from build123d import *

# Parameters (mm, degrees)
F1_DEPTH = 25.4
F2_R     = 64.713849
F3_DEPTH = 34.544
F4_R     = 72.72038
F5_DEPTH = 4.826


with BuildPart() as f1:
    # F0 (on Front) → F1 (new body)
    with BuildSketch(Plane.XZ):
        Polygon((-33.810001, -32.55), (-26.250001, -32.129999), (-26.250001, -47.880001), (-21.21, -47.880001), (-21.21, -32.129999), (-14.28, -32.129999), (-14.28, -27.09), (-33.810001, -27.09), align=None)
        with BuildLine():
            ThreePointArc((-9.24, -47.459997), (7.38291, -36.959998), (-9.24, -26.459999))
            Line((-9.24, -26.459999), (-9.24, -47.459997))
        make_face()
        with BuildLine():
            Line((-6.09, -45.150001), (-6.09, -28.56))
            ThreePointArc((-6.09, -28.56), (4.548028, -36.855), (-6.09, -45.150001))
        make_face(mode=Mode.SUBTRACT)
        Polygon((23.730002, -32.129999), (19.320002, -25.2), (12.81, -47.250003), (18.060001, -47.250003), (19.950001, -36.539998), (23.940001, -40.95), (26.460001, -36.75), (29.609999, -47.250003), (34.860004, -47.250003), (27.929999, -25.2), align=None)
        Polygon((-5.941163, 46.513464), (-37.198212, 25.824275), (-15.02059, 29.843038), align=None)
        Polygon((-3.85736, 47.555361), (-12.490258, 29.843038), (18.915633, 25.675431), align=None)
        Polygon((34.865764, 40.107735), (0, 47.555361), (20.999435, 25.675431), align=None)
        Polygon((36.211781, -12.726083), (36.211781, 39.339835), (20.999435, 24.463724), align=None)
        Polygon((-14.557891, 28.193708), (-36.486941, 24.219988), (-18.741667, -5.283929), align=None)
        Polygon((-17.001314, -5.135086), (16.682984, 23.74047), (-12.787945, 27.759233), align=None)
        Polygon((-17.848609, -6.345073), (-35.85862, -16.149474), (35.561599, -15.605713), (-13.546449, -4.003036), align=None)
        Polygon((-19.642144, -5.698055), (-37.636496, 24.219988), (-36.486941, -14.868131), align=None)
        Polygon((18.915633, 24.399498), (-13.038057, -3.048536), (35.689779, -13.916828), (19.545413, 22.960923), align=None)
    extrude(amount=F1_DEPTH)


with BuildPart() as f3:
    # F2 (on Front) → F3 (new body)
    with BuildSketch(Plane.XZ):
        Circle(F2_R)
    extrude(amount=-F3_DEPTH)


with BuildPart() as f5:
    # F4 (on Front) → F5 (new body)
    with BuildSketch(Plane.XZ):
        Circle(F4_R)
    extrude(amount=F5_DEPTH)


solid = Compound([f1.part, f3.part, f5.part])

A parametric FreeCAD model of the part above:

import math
import FreeCAD as App
import Part
import Sketcher
Q = App.Units.Quantity

doc = App.newDocument("Part")
body = doc.addObject("PartDesign::Body", "Body")
body.AllowCompound = True

sketch1 = doc.addObject("Sketcher::SketchObject", "Sketch")
body.addObject(sketch1)
sketch1.AttachmentSupport = (doc.XZ_Plane, [""])
sketch1.MapMode = "FlatFace"
sketch1.addGeometry([
    Part.LineSegment(App.Vector(-33.810001, -32.55, 0), App.Vector(-26.250001, -32.129999, 0)),
    Part.LineSegment(App.Vector(-26.250001, -32.129999, 0), App.Vector(-26.250001, -47.880001, 0)),
    Part.LineSegment(App.Vector(-26.250001, -47.880001, 0), App.Vector(-21.21, -47.880001, 0)),
    Part.LineSegment(App.Vector(-21.21, -47.880001, 0), App.Vector(-21.21, -32.129999, 0)),
    Part.LineSegment(App.Vector(-21.21, -32.129999, 0), App.Vector(-14.28, -32.129999, 0)),
    Part.LineSegment(App.Vector(-14.28, -32.129999, 0), App.Vector(-14.28, -27.09, 0)),
    Part.LineSegment(App.Vector(-14.28, -27.09, 0), App.Vector(-33.810001, -27.09, 0)),
    Part.LineSegment(App.Vector(-33.810001, -27.09, 0), App.Vector(-33.810001, -32.55, 0)),
    Part.ArcOfCircle(Part.Circle(App.Vector(-4.244751, -36.959998, 0), App.Vector(0, 0, 1), 11.627661), math.radians(-115.442212), math.radians(115.442212)),
    Part.LineSegment(App.Vector(-9.24, -26.459999, 0), App.Vector(-9.24, -47.459997, 0)),
    Part.ArcOfCircle(Part.Circle(App.Vector(-4.004999, -36.855001, 0), App.Vector(0, 0, 1), 8.553027), math.radians(-104.109364), math.radians(104.109364)),
    Part.LineSegment(App.Vector(-6.09, -45.150001, 0), App.Vector(-6.09, -28.56, 0)),
    Part.LineSegment(App.Vector(23.730002, -32.129999, 0), App.Vector(19.320002, -25.2, 0)),
    Part.LineSegment(App.Vector(19.320002, -25.2, 0), App.Vector(12.81, -47.250003, 0)),
    Part.LineSegment(App.Vector(12.81, -47.250003, 0), App.Vector(18.060001, -47.250003, 0)),
    Part.LineSegment(App.Vector(18.060001, -47.250003, 0), App.Vector(19.950001, -36.539998, 0)),
    Part.LineSegment(App.Vector(19.950001, -36.539998, 0), App.Vector(23.940001, -40.95, 0)),
    Part.LineSegment(App.Vector(23.940001, -40.95, 0), App.Vector(26.460001, -36.75, 0)),
    Part.LineSegment(App.Vector(26.460001, -36.75, 0), App.Vector(29.609999, -47.250003, 0)),
    Part.LineSegment(App.Vector(29.609999, -47.250003, 0), App.Vector(34.860004, -47.250003, 0)),
    Part.LineSegment(App.Vector(34.860004, -47.250003, 0), App.Vector(27.929999, -25.2, 0)),
    Part.LineSegment(App.Vector(27.929999, -25.2, 0), App.Vector(23.730002, -32.129999, 0)),
    Part.LineSegment(App.Vector(-5.941163, 46.513464, 0), App.Vector(-37.198212, 25.824275, 0)),
    Part.LineSegment(App.Vector(-37.198212, 25.824275, 0), App.Vector(-15.02059, 29.843038, 0)),
    Part.LineSegment(App.Vector(-15.02059, 29.843038, 0), App.Vector(-5.941163, 46.513464, 0)),
    Part.LineSegment(App.Vector(-3.85736, 47.555361, 0), App.Vector(-12.490258, 29.843038, 0)),
    Part.LineSegment(App.Vector(-12.490258, 29.843038, 0), App.Vector(18.915633, 25.675431, 0)),
    Part.LineSegment(App.Vector(18.915633, 25.675431, 0), App.Vector(-3.85736, 47.555361, 0)),
    Part.LineSegment(App.Vector(34.865764, 40.107735, 0), App.Vector(0, 47.555361, 0)),
    Part.LineSegment(App.Vector(0, 47.555361, 0), App.Vector(20.999435, 25.675431, 0)),
    Part.LineSegment(App.Vector(20.999435, 25.675431, 0), App.Vector(34.865764, 40.107735, 0)),
    Part.LineSegment(App.Vector(36.211781, -12.726083, 0), App.Vector(36.211781, 39.339835, 0)),
    Part.LineSegment(App.Vector(36.211781, 39.339835, 0), App.Vector(20.999435, 24.463724, 0)),
    Part.LineSegment(App.Vector(20.999435, 24.463724, 0), App.Vector(36.211781, -12.726083, 0)),
    Part.LineSegment(App.Vector(-14.557891, 28.193708, 0), App.Vector(-36.486941, 24.219988, 0)),
    Part.LineSegment(App.Vector(-36.486941, 24.219988, 0), App.Vector(-18.741667, -5.283929, 0)),
    Part.LineSegment(App.Vector(-18.741667, -5.283929, 0), App.Vector(-14.557891, 28.193708, 0)),
    Part.LineSegment(App.Vector(-17.001314, -5.135086, 0), App.Vector(16.682984, 23.74047, 0)),
    Part.LineSegment(App.Vector(16.682984, 23.74047, 0), App.Vector(-12.787945, 27.759233, 0)),
    Part.LineSegment(App.Vector(-12.787945, 27.759233, 0), App.Vector(-17.001314, -5.135086, 0)),
    Part.LineSegment(App.Vector(-17.848609, -6.345073, 0), App.Vector(-35.85862, -16.149474, 0)),
    Part.LineSegment(App.Vector(-35.85862, -16.149474, 0), App.Vector(35.561599, -15.605713, 0)),
    Part.LineSegment(App.Vector(35.561599, -15.605713, 0), App.Vector(-13.546449, -4.003036, 0)),
    Part.LineSegment(App.Vector(-13.546449, -4.003036, 0), App.Vector(-17.848609, -6.345073, 0)),
    Part.LineSegment(App.Vector(-19.642144, -5.698055, 0), App.Vector(-37.636496, 24.219988, 0)),
    Part.LineSegment(App.Vector(-37.636496, 24.219988, 0), App.Vector(-36.486941, -14.868131, 0)),
    Part.LineSegment(App.Vector(-36.486941, -14.868131, 0), App.Vector(-19.642144, -5.698055, 0)),
    Part.LineSegment(App.Vector(18.915633, 24.399498, 0), App.Vector(-13.038057, -3.048536, 0)),
    Part.LineSegment(App.Vector(-13.038057, -3.048536, 0), App.Vector(35.689779, -13.916828, 0)),
    Part.LineSegment(App.Vector(35.689779, -13.916828, 0), App.Vector(19.545413, 22.960923, 0)),
    Part.LineSegment(App.Vector(19.545413, 22.960923, 0), App.Vector(18.915633, 24.399498, 0)),
], False)
sketch1.addConstraint([
    Sketcher.Constraint("Coincident", 0, 2, 1, 1),
    Sketcher.Constraint("Coincident", 1, 2, 2, 1),
    Sketcher.Constraint("Coincident", 2, 2, 3, 1),
    Sketcher.Constraint("Coincident", 3, 2, 4, 1),
    Sketcher.Constraint("Coincident", 4, 2, 5, 1),
    Sketcher.Constraint("Coincident", 5, 2, 6, 1),
    Sketcher.Constraint("Coincident", 6, 2, 7, 1),
    Sketcher.Constraint("Coincident", 7, 2, 0, 1),
    Sketcher.Constraint("Coincident", 8, 1, 9, 2),
    Sketcher.Constraint("Coincident", 9, 1, 8, 2),
    Sketcher.Constraint("Coincident", 10, 1, 11, 1),
    Sketcher.Constraint("Coincident", 11, 2, 10, 2),
    Sketcher.Constraint("Coincident", 12, 2, 13, 1),
    Sketcher.Constraint("Coincident", 13, 2, 14, 1),
    Sketcher.Constraint("Coincident", 14, 2, 15, 1),
    Sketcher.Constraint("Coincident", 15, 2, 16, 1),
    Sketcher.Constraint("Coincident", 16, 2, 17, 1),
    Sketcher.Constraint("Coincident", 17, 2, 18, 1),
    Sketcher.Constraint("Coincident", 18, 2, 19, 1),
    Sketcher.Constraint("Coincident", 19, 2, 20, 1),
    Sketcher.Constraint("Coincident", 20, 2, 21, 1),
    Sketcher.Constraint("Coincident", 21, 2, 12, 1),
    Sketcher.Constraint("Coincident", 22, 2, 23, 1),
    Sketcher.Constraint("Coincident", 23, 2, 24, 1),
    Sketcher.Constraint("Coincident", 24, 2, 22, 1),
    Sketcher.Constraint("Coincident", 25, 2, 26, 1),
    Sketcher.Constraint("Coincident", 26, 2, 27, 1),
    Sketcher.Constraint("Coincident", 27, 2, 25, 1),
    Sketcher.Constraint("Coincident", 28, 2, 29, 1),
    Sketcher.Constraint("Coincident", 29, 2, 30, 1),
    Sketcher.Constraint("Coincident", 30, 2, 28, 1),
    Sketcher.Constraint("Coincident", 31, 2, 32, 1),
    Sketcher.Constraint("Coincident", 32, 2, 33, 1),
    Sketcher.Constraint("Coincident", 33, 2, 31, 1),
    Sketcher.Constraint("Coincident", 34, 2, 35, 1),
    Sketcher.Constraint("Coincident", 35, 2, 36, 1),
    Sketcher.Constraint("Coincident", 36, 2, 34, 1),
    Sketcher.Constraint("Coincident", 37, 2, 38, 1),
    Sketcher.Constraint("Coincident", 38, 2, 39, 1),
    Sketcher.Constraint("Coincident", 39, 2, 37, 1),
    Sketcher.Constraint("Coincident", 40, 2, 41, 1),
    Sketcher.Constraint("Coincident", 41, 2, 42, 1),
    Sketcher.Constraint("Coincident", 42, 2, 43, 1),
    Sketcher.Constraint("Coincident", 43, 2, 40, 1),
    Sketcher.Constraint("Coincident", 44, 2, 45, 1),
    Sketcher.Constraint("Coincident", 45, 2, 46, 1),
    Sketcher.Constraint("Coincident", 46, 2, 44, 1),
    Sketcher.Constraint("Coincident", 47, 2, 48, 1),
    Sketcher.Constraint("Coincident", 48, 2, 49, 1),
    Sketcher.Constraint("Coincident", 49, 2, 50, 1),
    Sketcher.Constraint("Coincident", 50, 2, 47, 1),
    Sketcher.Constraint("Vertical", 1),
    Sketcher.Constraint("Horizontal", 2),
    Sketcher.Constraint("Vertical", 3),
    Sketcher.Constraint("Horizontal", 4),
    Sketcher.Constraint("Vertical", 5),
    Sketcher.Constraint("Horizontal", 6),
    Sketcher.Constraint("Vertical", 7),
    Sketcher.Constraint("Vertical", 9),
    Sketcher.Constraint("Vertical", 11),
    Sketcher.Constraint("Horizontal", 14),
    Sketcher.Constraint("Horizontal", 19),
    Sketcher.Constraint("Vertical", 31),
    Sketcher.Constraint("PointOnObject", 28, 2, -2),
    Sketcher.Constraint("Radius", 8, 11.627661),
    Sketcher.Constraint("DistanceY", 40, 2, 43, 2, Q("0.386 in")),
    Sketcher.Constraint("DistanceX", 2, 1, 2, 2, 5.040001),
    Sketcher.Constraint("DistanceX", 4, 1, 4, 2, 6.93),
    Sketcher.Constraint("DistanceX", 6, 2, 6, 1, 19.530001),
    Sketcher.Constraint("DistanceX", 14, 1, 14, 2, 5.250001),
    Sketcher.Constraint("DistanceY", 5, 1, 5, 2, 5.039999),
    Sketcher.Constraint("DistanceY", 7, 2, 7, 1, 5.46),
    Sketcher.Constraint("DistanceY", 9, 2, 9, 1, 20.999998),
    Sketcher.Constraint("DistanceY", 11, 1, 11, 2, 16.590001),
    Sketcher.Constraint("DistanceY", 42, 2, -1, 1, Q("0.1575998 in")),
    Sketcher.Constraint("Radius", 10, 8.553027),
    Sketcher.Constraint("DistanceY", 7, 2, 22, 2, Q("2.2981998 in")),
    Sketcher.Constraint("Distance", 17, 4.898),
    Sketcher.Constraint("Distance", 24, 18.9826),
    Sketcher.Constraint("Distance", 27, 31.580699),
    Sketcher.Constraint("DistanceX", 10, 3, -1, 1, 4.004999),
    Sketcher.Constraint("DistanceY", 10, 3, -1, 1, 36.855001),
    Sketcher.Constraint("DistanceX", 0, 2, -1, 1, 26.250001),
    Sketcher.Constraint("DistanceY", 0, 2, -1, 1, 32.129999),
    Sketcher.Constraint("DistanceY", 1, 2, -1, 1, 47.880001),
    Sketcher.Constraint("DistanceY", 3, 2, -1, 1, 32.129999),
    Sketcher.Constraint("DistanceX", 8, 1, -1, 1, 9.24),
    Sketcher.Constraint("DistanceY", 9, 1, -1, 1, 26.459999),
    Sketcher.Constraint("DistanceX", -1, 1, 12, 2, 19.320002),
    Sketcher.Constraint("DistanceY", 12, 2, -1, 1, 25.2),
    Sketcher.Constraint("DistanceX", -1, 1, 13, 2, 12.81),
    Sketcher.Constraint("DistanceX", -1, 1, 15, 2, 19.950001),
    Sketcher.Constraint("DistanceX", -1, 1, 16, 2, 23.940001),
    Sketcher.Constraint("DistanceY", 16, 2, -1, 1, 40.95),
    Sketcher.Constraint("DistanceX", -1, 1, 17, 2, 26.460001),
    Sketcher.Constraint("DistanceX", -1, 1, 18, 2, 29.609999),
    Sketcher.Constraint("DistanceX", -1, 1, 20, 2, 27.929999),
    Sketcher.Constraint("DistanceY", 20, 2, -1, 1, 25.2),
    Sketcher.Constraint("DistanceX", -1, 1, 21, 2, 23.730002),
    Sketcher.Constraint("DistanceY", 21, 2, -1, 1, 32.129999),
    Sketcher.Constraint("DistanceX", -1, 1, 41, 2, 35.561599),
    Sketcher.Constraint("DistanceY", -1, 1, 50, 2, 24.399498),
    Sketcher.Constraint("DistanceY", 8, 3, 15, 2, 0.42),
    Sketcher.Constraint("DistanceX", 25, 2, 27, 2, 8.632898),
    Sketcher.Constraint("DistanceX", 26, 2, 29, 2, 2.083802),
    Sketcher.Constraint("DistanceY", 31, 2, 30, 2, 0.7679),
    Sketcher.Constraint("DistanceX", 26, 2, 32, 2, 2.083802),
    Sketcher.Constraint("DistanceX", 23, 2, 36, 2, 0.462699),
    Sketcher.Constraint("DistanceY", 42, 2, 47, 2, 0.9545),
    Sketcher.Constraint("DistanceY", 49, 2, 32, 2, 1.502801),
    Sketcher.Constraint("DistanceX", 50, 2, 32, 2, 2.083802),
    Sketcher.Constraint("Distance", 15, 10.875491),
    Sketcher.Constraint("Distance", 22, 37.483939),
    Sketcher.Constraint("Distance", 28, 35.65233),
    Sketcher.Constraint("Distance", 29, 30.326681),
    Sketcher.Constraint("Distance", 32, 21.27708),
    Sketcher.Constraint("Distance", 37, 44.366988),
    Sketcher.Constraint("Distance", 41, 71.422289),
    Sketcher.Constraint("Distance", 43, 4.898338),
    Sketcher.Constraint("Distance", 45, 39.105019),
    Sketcher.Constraint("Distance", 46, 19.17909),
    Sketcher.Constraint("Distance", 48, 49.925162),
    Sketcher.Constraint("Distance", 49, 40.256789),
    Sketcher.Constraint("Distance", 50, 1.570389),
    Sketcher.Constraint("DistanceX", 19, 1, 19, 2, 5.250005),
    Sketcher.Constraint("DistanceY", 31, 1, 31, 2, 52.065918),
    Sketcher.Constraint("DistanceX", 22, 2, -1, 1, 37.198212),
    Sketcher.Constraint("DistanceX", 23, 2, -1, 1, 15.02059),
    Sketcher.Constraint("DistanceY", -1, 1, 23, 2, 29.843038),
    Sketcher.Constraint("DistanceX", 25, 2, -1, 1, 12.490258),
    Sketcher.Constraint("DistanceY", -1, 1, 25, 2, 29.843038),
    Sketcher.Constraint("DistanceY", -1, 1, 26, 2, 25.675431),
    Sketcher.Constraint("DistanceY", -1, 1, 27, 2, 47.555361),
    Sketcher.Constraint("DistanceY", -1, 1, 28, 2, 47.555361),
    Sketcher.Constraint("DistanceX", -1, 1, 31, 2, 36.211781),
    Sketcher.Constraint("DistanceX", 34, 2, -1, 1, 36.486941),
    Sketcher.Constraint("DistanceY", -1, 1, 34, 2, 24.219988),
    Sketcher.Constraint("DistanceY", 35, 2, -1, 1, 5.283929),
    Sketcher.Constraint("DistanceY", -1, 1, 36, 2, 28.193708),
    Sketcher.Constraint("DistanceY", -1, 1, 37, 2, 23.74047),
    Sketcher.Constraint("DistanceX", 40, 2, -1, 1, 35.85862),
    Sketcher.Constraint("DistanceX", 42, 2, -1, 1, 13.546449),
    Sketcher.Constraint("DistanceX", 43, 2, -1, 1, 17.848609),
    Sketcher.Constraint("DistanceY", -1, 1, 44, 2, 24.219988),
    Sketcher.Constraint("DistanceX", 45, 2, -1, 1, 36.486941),
    Sketcher.Constraint("DistanceY", 45, 2, -1, 1, 14.868131),
    Sketcher.Constraint("DistanceX", -1, 1, 48, 2, 35.689779),
    Sketcher.Constraint("DistanceX", 29, 2, 30, 2, 13.866329),
    Sketcher.Constraint("DistanceX", 37, 2, 26, 2, 2.232649),
    Sketcher.Constraint("DistanceY", 38, 2, 24, 2, 18.754231),
    Sketcher.Constraint("DistanceY", 39, 2, 42, 2, 1.13205),
    Sketcher.Constraint("DistanceX", 44, 2, 38, 2, 24.848551),
    Sketcher.Constraint("DistanceY", 43, 2, 46, 2, 0.647018),
    Sketcher.Constraint("DistanceX", 35, 2, 47, 2, 5.70361),
    Sketcher.Constraint("Distance", 18, 10.962324),
])
pad1 = doc.addObject("PartDesign::Pad", "Pad")
body.addObject(pad1)
pad1.Profile = sketch1
pad1.Length = Q("1 in")
body2 = doc.addObject("PartDesign::Body", "Body001")

sketch2 = doc.addObject("Sketcher::SketchObject", "Sketch001")
body2.addObject(sketch2)
sketch2.AttachmentSupport = (doc.getObject("XZ_Plane001"), [""])
sketch2.MapMode = "FlatFace"
sketch2.addGeometry(Part.Circle(App.Vector(0, 0, 0), App.Vector(0, 0, 1), 65), False)
sketch2.addConstraint([
    Sketcher.Constraint("Coincident", 0, 3, -1, 1),
    Sketcher.Constraint("Diameter", 0, 129.427698),
])
pad2 = doc.addObject("PartDesign::Pad", "Pad001")
body2.addObject(pad2)
pad2.Profile = sketch2
pad2.Length = Q("1.36 in")
pad2.Reversed = True
body3 = doc.addObject("PartDesign::Body", "Body002")

sketch3 = doc.addObject("Sketcher::SketchObject", "Sketch002")
body3.addObject(sketch3)
sketch3.AttachmentSupport = (doc.getObject("XZ_Plane002"), [""])
sketch3.MapMode = "FlatFace"
sketch3.addGeometry(Part.Circle(App.Vector(0, 0, 0), App.Vector(0, 0, 1), 73), False)
sketch3.addConstraint([
    Sketcher.Constraint("Coincident", 0, 3, -1, 1),
    Sketcher.Constraint("Diameter", 0, 145.44076),
])
pad3 = doc.addObject("PartDesign::Pad", "Pad002")
body3.addObject(pad3)
pad3.Profile = sketch3
pad3.Length = Q("0.19 in")

doc.recompute()
